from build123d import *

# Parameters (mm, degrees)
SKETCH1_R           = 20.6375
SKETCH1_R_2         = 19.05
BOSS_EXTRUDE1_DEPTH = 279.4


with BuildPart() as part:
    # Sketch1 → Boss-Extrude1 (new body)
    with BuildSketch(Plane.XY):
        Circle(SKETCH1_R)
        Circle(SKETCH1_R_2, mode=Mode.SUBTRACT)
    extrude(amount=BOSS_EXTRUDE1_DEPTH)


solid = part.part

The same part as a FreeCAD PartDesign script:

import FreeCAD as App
import Part
import Sketcher
from FreeCAD import Vector
Q = App.Units.Quantity

doc = App.newDocument("Part")
body = doc.addObject("PartDesign::Body", "Body")

# Sketch on XY plane
sketch1 = doc.addObject("Sketcher::SketchObject", "Sketch")
body.addObject(sketch1)
sketch1.AttachmentSupport = (doc.XY_Plane, [""])
sketch1.MapMode = "FlatFace"
sketch1.addGeometry([
    Part.Circle(Vector(0, 0, 0), Vector(0, 0, 1), 20.6375),
    Part.Circle(Vector(0, 0, 0), Vector(0, 0, 1), 19.05),
], False)
sketch1.addConstraint([
    Sketcher.Constraint("Coincident", 0, 3, -1, 1),
    Sketcher.Constraint("Coincident", 1, 3, -1, 1),
    Sketcher.Constraint("Diameter", 1, Q("1.5 in")),
    Sketcher.Constraint("Diameter", 0, Q("1.625 in")),
])
pad1 = doc.addObject("PartDesign::Pad", "Pad")
body.addObject(pad1)
pad1.Profile = sketch1
pad1.Length = Q("11 in")

doc.recompute()
